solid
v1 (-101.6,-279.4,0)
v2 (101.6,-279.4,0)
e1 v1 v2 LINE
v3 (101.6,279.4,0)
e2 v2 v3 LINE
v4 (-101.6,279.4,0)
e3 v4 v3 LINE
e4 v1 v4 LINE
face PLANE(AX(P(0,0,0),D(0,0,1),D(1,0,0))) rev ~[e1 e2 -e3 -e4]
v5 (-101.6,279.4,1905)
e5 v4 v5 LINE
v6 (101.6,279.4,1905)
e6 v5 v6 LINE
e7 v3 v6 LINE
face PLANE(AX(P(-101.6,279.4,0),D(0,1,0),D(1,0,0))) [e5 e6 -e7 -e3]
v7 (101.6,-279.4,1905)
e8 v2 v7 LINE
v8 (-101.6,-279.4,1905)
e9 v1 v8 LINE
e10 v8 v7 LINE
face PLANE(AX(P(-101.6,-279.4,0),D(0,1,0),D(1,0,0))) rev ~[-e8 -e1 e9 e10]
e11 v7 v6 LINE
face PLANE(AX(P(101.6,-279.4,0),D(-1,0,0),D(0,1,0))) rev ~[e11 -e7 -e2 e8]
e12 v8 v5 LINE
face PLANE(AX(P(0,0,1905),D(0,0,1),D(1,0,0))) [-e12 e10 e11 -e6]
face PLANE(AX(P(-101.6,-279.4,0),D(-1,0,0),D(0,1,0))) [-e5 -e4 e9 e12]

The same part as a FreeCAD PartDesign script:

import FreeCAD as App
import Part
import Sketcher
from FreeCAD import Vector
Q = App.Units.Quantity


def add_polygon(sketch, points):
    """Adds a closed chain of lines whose ends are joined by coincident constraints."""
    first, n = sketch.GeometryCount, len(points)
    for a, b in zip(points, points[1:] + points[:1]):
        sketch.addGeometry(Part.LineSegment(App.Vector(*a, 0), App.Vector(*b, 0)), False)
    for i in range(n):
        sketch.addConstraint(Sketcher.Constraint("Coincident", first + i, 2, first + (i + 1) % n, 1))

doc = App.newDocument("Part")
params = doc.addObject("Spreadsheet::Sheet", "Params")
for row, (alias, value) in enumerate([
    ("sketch1_width", "8 in"),
    ("sketch1_height", "22 in"),
    ("pad1_length", "75 in"),
    ("pad2_length", "75 in"),
], start=1):
    params.set(f"A{row}", alias)
    params.set(f"B{row}", "=" + value)
    params.setAlias(f"B{row}", alias)

body = doc.addObject("PartDesign::Body", "Body")

# Sketch on XY plane
sketch1 = body.newObject("Sketcher::SketchObject", "Sketch")
sketch1.AttachmentSupport = (doc.getObject("XY_Plane"), [""])
sketch1.MapMode = "FlatFace"
add_polygon(sketch1, [(-101.6, 279.4), (-101.6, -279.4), (101.6, -279.4), (101.6, 279.4)])  # lines 0-3
sketch1.addConstraint([
    Sketcher.Constraint("Vertical", 0),
    Sketcher.Constraint("Horizontal", 1),
    Sketcher.Constraint("Vertical", 2),
    Sketcher.Constraint("Horizontal", 3),
    Sketcher.Constraint("Symmetric", 0, 2, 2, 2, -1, 1),
    Sketcher.Constraint("DistanceX", 1, 1, 1, 2, Q("8 in")),
    Sketcher.Constraint("DistanceY", 0, 2, 0, 1, Q("22 in")),
])
sketch1.setExpression("Constraints[9]", "Params.sketch1_width")
sketch1.setExpression("Constraints[10]", "Params.sketch1_height")
pad1 = body.newObject("PartDesign::Pad", "Pad")
pad1.Profile = sketch1
pad1.setExpression("Length", "Params.pad1_length")
body2 = doc.addObject("PartDesign::Body", "Body001")

# Sketch on XY plane
sketch2 = body2.newObject("Sketcher::SketchObject", "Sketch001")
sketch2.AttachmentSupport = (doc.getObject("XY_Plane001"), [""])
sketch2.MapMode = "FlatFace"
sketch2.AttachmentOffset = App.Placement(Vector(0, 0, 75 * 25.4), App.Rotation())
add_polygon(sketch2, [(101.599999, 268.922508), (101.599999, -268.922508), (115.603878, -268.922508), (115.603878, 268.922508)])  # lines 0-3
sketch2.addConstraint([
    Sketcher.Constraint("Vertical", 0),
    Sketcher.Constraint("Horizontal", 1),
    Sketcher.Constraint("Vertical", 2),
    Sketcher.Constraint("Horizontal", 3),
    Sketcher.Constraint("DistanceX", -1, 1, 0, 2, Q("4 in")),
    Sketcher.Constraint("DistanceX", 1, 1, 1, 2, 14.003879),
    Sketcher.Constraint("DistanceY", 0, 2, 0, 1, 537.845016),
    Sketcher.Constraint("DistanceY", 0, 2, -1, 1, 268.922508),
])
pad2 = body2.newObject("PartDesign::Pad", "Pad001")
pad2.Profile = sketch2
pad2.setExpression("Length", "Params.pad2_length")
body2.Visibility = False

doc.recompute()
